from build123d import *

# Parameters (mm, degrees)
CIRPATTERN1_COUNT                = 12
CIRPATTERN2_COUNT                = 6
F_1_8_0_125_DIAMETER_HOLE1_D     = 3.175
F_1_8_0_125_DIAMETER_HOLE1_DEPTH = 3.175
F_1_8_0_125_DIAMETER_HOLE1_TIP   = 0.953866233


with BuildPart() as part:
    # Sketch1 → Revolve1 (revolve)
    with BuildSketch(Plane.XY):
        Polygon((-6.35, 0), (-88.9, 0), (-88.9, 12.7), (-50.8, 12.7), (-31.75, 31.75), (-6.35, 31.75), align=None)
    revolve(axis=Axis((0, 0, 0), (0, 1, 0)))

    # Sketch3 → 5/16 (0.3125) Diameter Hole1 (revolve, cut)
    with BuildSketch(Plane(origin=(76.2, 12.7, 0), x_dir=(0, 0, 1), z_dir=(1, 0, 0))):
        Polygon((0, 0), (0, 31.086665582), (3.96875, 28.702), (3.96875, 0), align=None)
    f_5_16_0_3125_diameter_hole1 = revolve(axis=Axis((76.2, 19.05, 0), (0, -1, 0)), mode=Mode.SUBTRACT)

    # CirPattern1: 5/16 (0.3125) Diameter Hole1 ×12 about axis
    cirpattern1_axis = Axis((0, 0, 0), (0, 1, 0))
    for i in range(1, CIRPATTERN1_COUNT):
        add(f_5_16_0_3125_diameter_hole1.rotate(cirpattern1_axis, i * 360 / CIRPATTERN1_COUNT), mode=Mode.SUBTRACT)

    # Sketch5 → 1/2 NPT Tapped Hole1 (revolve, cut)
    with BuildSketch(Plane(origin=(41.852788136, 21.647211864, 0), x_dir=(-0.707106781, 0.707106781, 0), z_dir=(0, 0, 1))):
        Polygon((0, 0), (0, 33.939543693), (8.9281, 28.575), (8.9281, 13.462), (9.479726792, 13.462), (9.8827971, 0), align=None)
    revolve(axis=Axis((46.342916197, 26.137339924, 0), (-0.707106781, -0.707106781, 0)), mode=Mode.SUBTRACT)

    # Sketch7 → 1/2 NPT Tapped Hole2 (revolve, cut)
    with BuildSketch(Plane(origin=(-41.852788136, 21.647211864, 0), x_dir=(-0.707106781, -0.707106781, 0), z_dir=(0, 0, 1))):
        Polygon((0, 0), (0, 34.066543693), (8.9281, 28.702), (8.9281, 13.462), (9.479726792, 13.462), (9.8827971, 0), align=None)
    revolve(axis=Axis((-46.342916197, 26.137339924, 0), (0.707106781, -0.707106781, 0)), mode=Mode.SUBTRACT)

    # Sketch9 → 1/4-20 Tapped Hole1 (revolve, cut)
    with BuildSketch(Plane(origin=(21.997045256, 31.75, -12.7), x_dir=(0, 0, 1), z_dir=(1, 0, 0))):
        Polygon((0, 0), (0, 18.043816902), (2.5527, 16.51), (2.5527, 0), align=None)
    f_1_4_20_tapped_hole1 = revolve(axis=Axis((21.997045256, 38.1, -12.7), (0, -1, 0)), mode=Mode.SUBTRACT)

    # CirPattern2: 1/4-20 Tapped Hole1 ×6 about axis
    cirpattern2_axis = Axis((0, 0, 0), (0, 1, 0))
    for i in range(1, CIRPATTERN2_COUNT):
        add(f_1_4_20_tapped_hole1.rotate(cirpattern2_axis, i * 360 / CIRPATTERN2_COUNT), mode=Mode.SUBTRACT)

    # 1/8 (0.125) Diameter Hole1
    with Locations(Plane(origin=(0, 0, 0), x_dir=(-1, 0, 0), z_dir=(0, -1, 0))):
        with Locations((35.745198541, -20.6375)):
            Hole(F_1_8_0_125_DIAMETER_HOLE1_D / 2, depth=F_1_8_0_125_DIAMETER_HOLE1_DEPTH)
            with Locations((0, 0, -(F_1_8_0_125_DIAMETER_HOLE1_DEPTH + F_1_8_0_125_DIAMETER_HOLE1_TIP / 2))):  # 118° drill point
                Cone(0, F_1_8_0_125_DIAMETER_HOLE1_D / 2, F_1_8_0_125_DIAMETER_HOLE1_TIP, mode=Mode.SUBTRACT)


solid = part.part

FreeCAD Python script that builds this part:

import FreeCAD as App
import Part
import Sketcher

V = App.Vector
Q = App.Units.Quantity


def add_polygon(sketch, points):
    """Adds a closed chain of lines whose ends are joined by coincident constraints."""
    first, n = sketch.GeometryCount, len(points)
    for a, b in zip(points, points[1:] + points[:1]):
        sketch.addGeometry(Part.LineSegment(App.Vector(*a, 0), App.Vector(*b, 0)), False)
    for i in range(n):
        sketch.addConstraint(Sketcher.Constraint("Coincident", first + i, 2, first + (i + 1) % n, 1))

doc = App.newDocument("Part")
params = doc.addObject("Spreadsheet::Sheet", "Params")
for row, (alias, value) in enumerate([
    ("sketch1_width", "1 in"),
    ("sketch1_width2", "1.5 in"),
    ("sketch1_height", "0.5 in"),
    ("sketch1_width3", "3.25 in"),
    ("revolution_angle", "360 deg"),
    ("sketch2_width", "1.13 in"),
    ("sketch2_height", "0.15625 in"),
    ("groove_angle", "360 deg"),
    ("sketch3_length", "0.595 in"),
    ("groove2_angle", "360 deg"),
    ("sketch4_length", "0.6 in"),
    ("groove3_angle", "360 deg"),
    ("sketch5_width", "0.65 in"),
    ("groove4_angle", "360 deg"),
    ("sketch6_diameter", "0.125 in"),
    ("hole_diameter", "0.125 in"),
    ("hole_depth", "0.125 in"),
], start=1):
    params.set(f"A{row}", alias)
    params.set(f"B{row}", "=" + value)
    params.setAlias(f"B{row}", alias)

body = doc.addObject("PartDesign::Body", "Body")

# Sketch on XY plane
sketch1 = body.newObject("Sketcher::SketchObject", "Sketch")
sketch1.AttachmentSupport = (doc.getObject("XY_Plane"), [""])
sketch1.MapMode = "FlatFace"
add_polygon(sketch1, [(-89, 0), (-6, 0), (-6, 32), (-32, 32), (-51, 13), (-89, 13)])  # lines 0-5
sketch1.addConstraint([
    Sketcher.Constraint("Horizontal", 0),
    Sketcher.Constraint("Vertical", 1),
    Sketcher.Constraint("Horizontal", 2),
    Sketcher.Constraint("Horizontal", 4),
    Sketcher.Constraint("Vertical", 5),
    Sketcher.Constraint("PointOnObject", 0, 2, -1),
    Sketcher.Constraint("DistanceX", 2, 2, 2, 1, Q("1 in")),
    Sketcher.Constraint("DistanceX", 4, 2, 4, 1, Q("1.5 in")),
    Sketcher.Constraint("DistanceY", 5, 2, 5, 1, Q("0.5 in")),
    Sketcher.Constraint("DistanceX", 3, 2, -1, 1, Q("2 in")),
    Sketcher.Constraint("Angle", 3, Q("-135 deg")),
    Sketcher.Constraint("DistanceX", 0, 1, 0, 2, Q("3.25 in")),
])
sketch1.setExpression("Constraints[12]", "Params.sketch1_width")
sketch1.setExpression("Constraints[13]", "Params.sketch1_width2")
sketch1.setExpression("Constraints[14]", "Params.sketch1_height")
sketch1.setExpression("Constraints[17]", "Params.sketch1_width3")
revolution = body.newObject("PartDesign::Revolution", "Revolution")
revolution.Profile = sketch1
revolution.ReferenceAxis = (sketch1, ["V_Axis"])
revolution.setExpression("Angle", "Params.revolution_angle")

# Sketch on YZ plane
sketch2 = body.newObject("Sketcher::SketchObject", "Sketch001")
sketch2.AttachmentSupport = (doc.getObject("YZ_Plane"), [""])
sketch2.MapMode = "FlatFace"
sketch2.AttachmentOffset = App.Placement(V(0, 0, 3 * 25.4), App.Rotation())
add_polygon(sketch2, [(-18.4, 0), (12.7, 0), (12.7, 4), (-16, 4)])  # lines 0-3
sketch2.addConstraint([
    Sketcher.Constraint("Horizontal", 0),
    Sketcher.Constraint("Vertical", 1),
    Sketcher.Constraint("Horizontal", 2),
    Sketcher.Constraint("PointOnObject", 0, 2, -1),
    Sketcher.Constraint("Angle", 3, Q("-121 deg")),
    Sketcher.Constraint("DistanceX", 2, 2, 2, 1, Q("1.13 in")),
    Sketcher.Constraint("DistanceX", -1, 1, 0, 2, Q("0.5 in")),
    Sketcher.Constraint("DistanceY", 1, 1, 1, 2, Q("0.15625 in")),
])
sketch2.setExpression("Constraints[9]", "Params.sketch2_width")
sketch2.setExpression("Constraints[11]", "Params.sketch2_height")
groove = body.newObject("PartDesign::Groove", "Groove")
groove.Profile = sketch2
groove.ReferenceAxis = (sketch2, ["H_Axis"])
groove.setExpression("Angle", "Params.groove_angle")
doc.recompute()

polarpattern = body.newObject("PartDesign::PolarPattern", "PolarPattern")
polarpattern.Originals = [groove]
polarpattern.Axis = (doc.getObject("Y_Axis"), [""])
polarpattern.Angle = 360
polarpattern.Occurrences = 12
body.Tip = polarpattern

# Sketch on XY plane
sketch3 = body.newObject("Sketcher::SketchObject", "Sketch002")
sketch3.AttachmentSupport = (doc.getObject("XY_Plane"), [""])
sketch3.MapMode = "FlatFace"
add_polygon(sketch3, [(17.9, -2.4), (41.9, 21.6), (34.9, 28.6), (25.6, 18.8), (26, 18.4), (15.3, 7.8)])  # lines 0-5
sketch3.addGeometry(Part.LineSegment(V(41.9, 21.6, 0), V(17.9, -2.4, 0)), True)  # axis
sketch3.addConstraint([
    Sketcher.Constraint("Coincident", 6, 1, 0, 2),
    Sketcher.Constraint("Coincident", 6, 2, 5, 2),
    Sketcher.Constraint("Perpendicular", 0, 1),
    Sketcher.Constraint("Parallel", 1, 3),
    Sketcher.Constraint("Perpendicular", 3, 4),
    Sketcher.Constraint("Angle", 0, Q("45 deg")),
    Sketcher.Constraint("Angle", 5, Q("-76 deg")),
    Sketcher.Constraint("Distance", 4, Q("0.595 in")),
    Sketcher.Constraint("DistanceX", 3, 2, 1, 2, 8.843999),
    Sketcher.Constraint("Distance", 5, 10.41582),
    Sketcher.Constraint("DistanceX", -1, 1, 0, 2, 41.852788),
    Sketcher.Constraint("DistanceY", -1, 1, 0, 2, 21.647212),
    Sketcher.Constraint("DistanceY", -1, 1, 2, 2, 18.831319),
    Sketcher.Constraint("DistanceY", -1, 1, 3, 2, 18.44126),
])
sketch3.setExpression("Constraints[13]", "Params.sketch3_length")
groove2 = body.newObject("PartDesign::Groove", "Groove001")
groove2.Profile = sketch3
groove2.ReferenceAxis = (sketch3, ["Axis0"])
groove2.setExpression("Angle", "Params.groove2_angle")

# Sketch on XY plane
sketch4 = body.newObject("Sketcher::SketchObject", "Sketch003")
sketch4.AttachmentSupport = (doc.getObject("XY_Plane"), [""])
sketch4.MapMode = "FlatFace"
add_polygon(sketch4, [(-17.8, -2.4), (-41.9, 21.6), (-48.8, 14.7), (-39, 5.4), (-38.6, 5.8), (-27.9, -5)])  # lines 0-5
sketch4.addGeometry(Part.LineSegment(V(-41.9, 21.6, 0), V(-17.8, -2.4, 0)), True)  # axis
sketch4.addConstraint([
    Sketcher.Constraint("Coincident", 6, 1, 0, 2),
    Sketcher.Constraint("Coincident", 6, 2, 5, 2),
    Sketcher.Constraint("Perpendicular", 0, 1),
    Sketcher.Constraint("Parallel", 1, 3),
    Sketcher.Constraint("Perpendicular", 3, 4),
    Sketcher.Constraint("Angle", 0, Q("135 deg")),
    Sketcher.Constraint("Angle", 5, Q("14 deg")),
    Sketcher.Constraint("Distance", 4, Q("0.6 in")),
    Sketcher.Constraint("DistanceY", 3, 2, 1, 2, 8.843999),
    Sketcher.Constraint("DistanceY", 4, 2, 0, 2, 26.608499),
    Sketcher.Constraint("Distance", 5, 10.41582),
    Sketcher.Constraint("DistanceX", 0, 2, -1, 1, 41.852788),
    Sketcher.Constraint("DistanceY", -1, 1, 0, 2, 21.647212),
    Sketcher.Constraint("DistanceY", -1, 1, 2, 2, 5.424961),
])
sketch4.setExpression("Constraints[13]", "Params.sketch4_length")
groove3 = body.newObject("PartDesign::Groove", "Groove002")
groove3.Profile = sketch4
groove3.ReferenceAxis = (sketch4, ["Axis0"])
groove3.setExpression("Angle", "Params.groove3_angle")

# Sketch on YZ plane
sketch5 = body.newObject("Sketcher::SketchObject", "Sketch004")
sketch5.AttachmentSupport = (doc.getObject("YZ_Plane"), [""])
sketch5.MapMode = "FlatFace"
sketch5.AttachmentOffset = App.Placement(V(0, 0, 21.997045), App.Rotation())
add_polygon(sketch5, [(13.7, -12.7), (31.8, -12.7), (31.8, -10.1), (15.2, -10.1)])  # lines 0-3
sketch5.addGeometry(Part.LineSegment(V(31.8, -12.7, 0), V(13.7, -12.7, 0)), True)  # axis
sketch5.addConstraint([
    Sketcher.Constraint("Horizontal", 0),
    Sketcher.Constraint("Vertical", 1),
    Sketcher.Constraint("Horizontal", 2),
    Sketcher.Constraint("Horizontal", 4),
    Sketcher.Constraint("Coincident", 4, 1, 0, 2),
    Sketcher.Constraint("Equal", 0, 4),
    Sketcher.Constraint("Angle", 3, Q("-121 deg")),
    Sketcher.Constraint("DistanceX", 2, 2, 2, 1, Q("0.65 in")),
    Sketcher.Constraint("DistanceY", 0, 2, -1, 1, Q("0.5 in")),
    Sketcher.Constraint("DistanceX", -1, 1, 2, 2, Q("0.6 in")),
    Sketcher.Constraint("DistanceY", 1, 1, 1, 2, Q("0.1005 in")),
])
sketch5.setExpression("Constraints[11]", "Params.sketch5_width")
groove4 = body.newObject("PartDesign::Groove", "Groove003")
groove4.Profile = sketch5
groove4.ReferenceAxis = (sketch5, ["Axis0"])
groove4.setExpression("Angle", "Params.groove4_angle")
doc.recompute()

polarpattern2 = body.newObject("PartDesign::PolarPattern", "PolarPattern001")
polarpattern2.Originals = [groove4]
polarpattern2.Axis = (doc.getObject("Y_Axis"), [""])
polarpattern2.Angle = 360
polarpattern2.Occurrences = 6
body.Tip = polarpattern2

# Sketch on XZ plane
sketch6 = body.newObject("Sketcher::SketchObject", "Sketch005")
sketch6.AttachmentSupport = (doc.getObject("XZ_Plane"), [""])
sketch6.MapMode = "FlatFace"
sketch6.addGeometry(Part.Circle(V(-35.7, 20.6, 0), V(0, 0, 1), 1.6), False)
sketch6.addConstraint([
    Sketcher.Constraint("Diameter", 0, Q("0.125 in")),
    Sketcher.Constraint("DistanceY", -1, 1, 0, 3, Q("0.8125 in")),
    Sketcher.Constraint("DistanceX", 0, 3, -1, 1, 35.745199),
])
sketch6.setExpression("Constraints[0]", "Params.sketch6_diameter")
doc.recompute()
hole = body.newObject("PartDesign::Hole", "Hole")
hole.Profile = sketch6
hole.ThreadType = "None"
hole.setExpression("Diameter", "Params.hole_diameter")
hole.DepthType = "Dimension"
hole.setExpression("Depth", "Params.hole_depth")
hole.DrillPoint = "Angled"
hole.DrillPointAngle = 118

doc.recompute()
